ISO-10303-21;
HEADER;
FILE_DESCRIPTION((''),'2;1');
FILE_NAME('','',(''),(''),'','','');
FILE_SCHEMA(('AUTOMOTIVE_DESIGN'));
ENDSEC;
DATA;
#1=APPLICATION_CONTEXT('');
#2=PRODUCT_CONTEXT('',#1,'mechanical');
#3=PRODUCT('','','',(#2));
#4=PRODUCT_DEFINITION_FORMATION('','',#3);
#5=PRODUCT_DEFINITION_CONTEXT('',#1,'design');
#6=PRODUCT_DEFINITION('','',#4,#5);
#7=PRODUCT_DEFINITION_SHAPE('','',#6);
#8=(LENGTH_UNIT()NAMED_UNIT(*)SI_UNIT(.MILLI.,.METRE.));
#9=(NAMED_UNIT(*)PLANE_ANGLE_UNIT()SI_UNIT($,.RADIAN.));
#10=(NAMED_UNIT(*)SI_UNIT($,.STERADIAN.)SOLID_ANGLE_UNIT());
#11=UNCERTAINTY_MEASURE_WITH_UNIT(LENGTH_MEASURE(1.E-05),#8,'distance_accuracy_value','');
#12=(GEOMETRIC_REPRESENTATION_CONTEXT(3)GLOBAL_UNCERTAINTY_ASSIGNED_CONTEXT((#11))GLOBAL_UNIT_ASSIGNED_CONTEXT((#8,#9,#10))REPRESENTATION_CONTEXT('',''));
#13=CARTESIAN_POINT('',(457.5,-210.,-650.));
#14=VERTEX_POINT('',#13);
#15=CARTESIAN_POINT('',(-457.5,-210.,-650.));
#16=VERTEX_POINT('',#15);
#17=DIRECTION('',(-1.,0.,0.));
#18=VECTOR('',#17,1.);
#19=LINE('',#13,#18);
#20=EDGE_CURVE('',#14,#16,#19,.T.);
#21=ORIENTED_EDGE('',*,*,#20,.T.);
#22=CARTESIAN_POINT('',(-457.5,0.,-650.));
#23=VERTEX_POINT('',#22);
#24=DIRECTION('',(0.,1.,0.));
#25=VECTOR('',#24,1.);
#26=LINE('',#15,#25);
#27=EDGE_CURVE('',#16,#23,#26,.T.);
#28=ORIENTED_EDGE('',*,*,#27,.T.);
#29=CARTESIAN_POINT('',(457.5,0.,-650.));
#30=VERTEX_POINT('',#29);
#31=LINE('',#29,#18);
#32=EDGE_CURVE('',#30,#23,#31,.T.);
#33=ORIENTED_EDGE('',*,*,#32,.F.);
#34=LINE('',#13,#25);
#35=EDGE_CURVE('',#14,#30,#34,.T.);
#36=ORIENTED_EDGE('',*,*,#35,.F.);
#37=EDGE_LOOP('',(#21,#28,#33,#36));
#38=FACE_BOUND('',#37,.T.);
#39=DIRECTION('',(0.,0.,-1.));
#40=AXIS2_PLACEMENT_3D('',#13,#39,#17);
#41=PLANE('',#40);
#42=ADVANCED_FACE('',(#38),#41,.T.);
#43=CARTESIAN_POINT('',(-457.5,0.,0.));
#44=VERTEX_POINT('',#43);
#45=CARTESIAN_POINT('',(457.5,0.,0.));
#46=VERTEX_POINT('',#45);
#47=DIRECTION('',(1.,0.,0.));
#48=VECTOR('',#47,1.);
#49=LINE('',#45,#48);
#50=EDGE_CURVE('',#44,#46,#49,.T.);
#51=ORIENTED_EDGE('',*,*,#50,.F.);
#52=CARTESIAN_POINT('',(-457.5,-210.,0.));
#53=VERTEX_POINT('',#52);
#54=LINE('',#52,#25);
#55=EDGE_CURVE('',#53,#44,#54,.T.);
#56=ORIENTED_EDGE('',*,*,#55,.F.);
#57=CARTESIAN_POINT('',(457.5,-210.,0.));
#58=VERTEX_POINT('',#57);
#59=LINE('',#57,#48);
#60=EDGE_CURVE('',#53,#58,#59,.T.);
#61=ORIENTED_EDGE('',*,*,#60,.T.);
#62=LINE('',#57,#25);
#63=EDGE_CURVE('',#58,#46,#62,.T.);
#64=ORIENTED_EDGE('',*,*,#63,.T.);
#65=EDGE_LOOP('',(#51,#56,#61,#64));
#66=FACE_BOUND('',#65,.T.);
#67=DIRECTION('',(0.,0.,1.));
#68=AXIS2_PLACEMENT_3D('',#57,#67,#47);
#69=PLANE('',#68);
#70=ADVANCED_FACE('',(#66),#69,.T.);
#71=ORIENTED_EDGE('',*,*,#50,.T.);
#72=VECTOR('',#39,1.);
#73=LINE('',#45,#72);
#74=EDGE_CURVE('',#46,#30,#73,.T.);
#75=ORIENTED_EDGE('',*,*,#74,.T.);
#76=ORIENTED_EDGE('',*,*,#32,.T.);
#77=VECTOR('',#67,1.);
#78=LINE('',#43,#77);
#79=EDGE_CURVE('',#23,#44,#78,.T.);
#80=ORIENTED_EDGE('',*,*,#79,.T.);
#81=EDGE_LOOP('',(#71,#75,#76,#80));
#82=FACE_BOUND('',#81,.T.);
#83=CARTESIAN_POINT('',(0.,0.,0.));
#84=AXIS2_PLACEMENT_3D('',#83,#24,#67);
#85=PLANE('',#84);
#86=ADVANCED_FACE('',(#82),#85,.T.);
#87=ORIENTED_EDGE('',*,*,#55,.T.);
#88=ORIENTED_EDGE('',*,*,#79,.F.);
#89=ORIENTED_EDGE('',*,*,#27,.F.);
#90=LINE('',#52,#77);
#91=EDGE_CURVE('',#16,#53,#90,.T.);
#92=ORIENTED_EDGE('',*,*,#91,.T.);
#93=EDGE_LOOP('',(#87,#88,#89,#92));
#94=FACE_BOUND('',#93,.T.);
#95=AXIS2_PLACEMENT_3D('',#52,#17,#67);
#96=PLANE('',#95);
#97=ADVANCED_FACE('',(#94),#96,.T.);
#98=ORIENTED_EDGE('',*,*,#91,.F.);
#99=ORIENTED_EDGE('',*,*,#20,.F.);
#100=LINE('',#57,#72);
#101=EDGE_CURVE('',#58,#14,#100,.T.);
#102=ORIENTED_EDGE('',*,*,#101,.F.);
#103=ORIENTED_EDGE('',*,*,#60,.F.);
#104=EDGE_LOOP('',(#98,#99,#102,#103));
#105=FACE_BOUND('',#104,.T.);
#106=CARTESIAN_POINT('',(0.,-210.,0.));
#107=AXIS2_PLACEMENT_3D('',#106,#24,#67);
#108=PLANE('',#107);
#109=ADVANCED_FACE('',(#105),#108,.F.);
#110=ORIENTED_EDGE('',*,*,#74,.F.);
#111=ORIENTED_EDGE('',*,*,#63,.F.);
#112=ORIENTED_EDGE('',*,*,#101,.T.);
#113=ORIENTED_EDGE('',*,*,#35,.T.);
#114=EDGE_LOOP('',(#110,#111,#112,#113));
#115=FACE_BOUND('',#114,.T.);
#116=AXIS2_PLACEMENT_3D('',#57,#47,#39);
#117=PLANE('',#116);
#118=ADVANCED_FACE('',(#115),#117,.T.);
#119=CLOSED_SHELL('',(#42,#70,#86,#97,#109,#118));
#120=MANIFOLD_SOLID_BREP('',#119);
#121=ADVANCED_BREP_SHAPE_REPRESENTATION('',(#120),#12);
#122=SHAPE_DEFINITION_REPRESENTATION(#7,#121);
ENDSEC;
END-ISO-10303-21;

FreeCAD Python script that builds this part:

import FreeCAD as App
import Part
import Sketcher

V = App.Vector
Q = App.Units.Quantity

doc = App.newDocument("Part")
body = doc.addObject("PartDesign::Body", "Body")

# Sketch on XZ plane
sketch1 = body.newObject("Sketcher::SketchObject", "Sketch")
sketch1.AttachmentSupport = (doc.getObject("XZ_Plane"), [""])
sketch1.MapMode = "FlatFace"
sketch1.addGeometry([
    Part.LineSegment(V(-458, -650, 0), V(-458, 0, 0)),
    Part.LineSegment(V(-458, 0, 0), V(458, 0, 0)),
    Part.LineSegment(V(458, 0, 0), V(458, -650, 0)),
    Part.LineSegment(V(458, -650, 0), V(-458, -650, 0)),
], False)
sketch1.addConstraint([
    Sketcher.Constraint("Coincident", 0, 2, 1, 1),
    Sketcher.Constraint("Coincident", 1, 2, 2, 1),
    Sketcher.Constraint("Coincident", 2, 2, 3, 1),
    Sketcher.Constraint("Coincident", 3, 2, 0, 1),
    Sketcher.Constraint("Vertical", 0),
    Sketcher.Constraint("Horizontal", 1),
    Sketcher.Constraint("Vertical", 2),
    Sketcher.Constraint("Horizontal", 3),
    Sketcher.Constraint("Symmetric", 0, 2, 1, 2, -1, 1),
    Sketcher.Constraint("DistanceX", 1, 1, 1, 2, Q("915 mm")),
    Sketcher.Constraint("DistanceY", 0, 1, 0, 2, Q("650 mm")),
])
pad1 = body.newObject("PartDesign::Pad", "Pad")
pad1.Profile = sketch1
pad1.Length = 210

doc.recompute()
